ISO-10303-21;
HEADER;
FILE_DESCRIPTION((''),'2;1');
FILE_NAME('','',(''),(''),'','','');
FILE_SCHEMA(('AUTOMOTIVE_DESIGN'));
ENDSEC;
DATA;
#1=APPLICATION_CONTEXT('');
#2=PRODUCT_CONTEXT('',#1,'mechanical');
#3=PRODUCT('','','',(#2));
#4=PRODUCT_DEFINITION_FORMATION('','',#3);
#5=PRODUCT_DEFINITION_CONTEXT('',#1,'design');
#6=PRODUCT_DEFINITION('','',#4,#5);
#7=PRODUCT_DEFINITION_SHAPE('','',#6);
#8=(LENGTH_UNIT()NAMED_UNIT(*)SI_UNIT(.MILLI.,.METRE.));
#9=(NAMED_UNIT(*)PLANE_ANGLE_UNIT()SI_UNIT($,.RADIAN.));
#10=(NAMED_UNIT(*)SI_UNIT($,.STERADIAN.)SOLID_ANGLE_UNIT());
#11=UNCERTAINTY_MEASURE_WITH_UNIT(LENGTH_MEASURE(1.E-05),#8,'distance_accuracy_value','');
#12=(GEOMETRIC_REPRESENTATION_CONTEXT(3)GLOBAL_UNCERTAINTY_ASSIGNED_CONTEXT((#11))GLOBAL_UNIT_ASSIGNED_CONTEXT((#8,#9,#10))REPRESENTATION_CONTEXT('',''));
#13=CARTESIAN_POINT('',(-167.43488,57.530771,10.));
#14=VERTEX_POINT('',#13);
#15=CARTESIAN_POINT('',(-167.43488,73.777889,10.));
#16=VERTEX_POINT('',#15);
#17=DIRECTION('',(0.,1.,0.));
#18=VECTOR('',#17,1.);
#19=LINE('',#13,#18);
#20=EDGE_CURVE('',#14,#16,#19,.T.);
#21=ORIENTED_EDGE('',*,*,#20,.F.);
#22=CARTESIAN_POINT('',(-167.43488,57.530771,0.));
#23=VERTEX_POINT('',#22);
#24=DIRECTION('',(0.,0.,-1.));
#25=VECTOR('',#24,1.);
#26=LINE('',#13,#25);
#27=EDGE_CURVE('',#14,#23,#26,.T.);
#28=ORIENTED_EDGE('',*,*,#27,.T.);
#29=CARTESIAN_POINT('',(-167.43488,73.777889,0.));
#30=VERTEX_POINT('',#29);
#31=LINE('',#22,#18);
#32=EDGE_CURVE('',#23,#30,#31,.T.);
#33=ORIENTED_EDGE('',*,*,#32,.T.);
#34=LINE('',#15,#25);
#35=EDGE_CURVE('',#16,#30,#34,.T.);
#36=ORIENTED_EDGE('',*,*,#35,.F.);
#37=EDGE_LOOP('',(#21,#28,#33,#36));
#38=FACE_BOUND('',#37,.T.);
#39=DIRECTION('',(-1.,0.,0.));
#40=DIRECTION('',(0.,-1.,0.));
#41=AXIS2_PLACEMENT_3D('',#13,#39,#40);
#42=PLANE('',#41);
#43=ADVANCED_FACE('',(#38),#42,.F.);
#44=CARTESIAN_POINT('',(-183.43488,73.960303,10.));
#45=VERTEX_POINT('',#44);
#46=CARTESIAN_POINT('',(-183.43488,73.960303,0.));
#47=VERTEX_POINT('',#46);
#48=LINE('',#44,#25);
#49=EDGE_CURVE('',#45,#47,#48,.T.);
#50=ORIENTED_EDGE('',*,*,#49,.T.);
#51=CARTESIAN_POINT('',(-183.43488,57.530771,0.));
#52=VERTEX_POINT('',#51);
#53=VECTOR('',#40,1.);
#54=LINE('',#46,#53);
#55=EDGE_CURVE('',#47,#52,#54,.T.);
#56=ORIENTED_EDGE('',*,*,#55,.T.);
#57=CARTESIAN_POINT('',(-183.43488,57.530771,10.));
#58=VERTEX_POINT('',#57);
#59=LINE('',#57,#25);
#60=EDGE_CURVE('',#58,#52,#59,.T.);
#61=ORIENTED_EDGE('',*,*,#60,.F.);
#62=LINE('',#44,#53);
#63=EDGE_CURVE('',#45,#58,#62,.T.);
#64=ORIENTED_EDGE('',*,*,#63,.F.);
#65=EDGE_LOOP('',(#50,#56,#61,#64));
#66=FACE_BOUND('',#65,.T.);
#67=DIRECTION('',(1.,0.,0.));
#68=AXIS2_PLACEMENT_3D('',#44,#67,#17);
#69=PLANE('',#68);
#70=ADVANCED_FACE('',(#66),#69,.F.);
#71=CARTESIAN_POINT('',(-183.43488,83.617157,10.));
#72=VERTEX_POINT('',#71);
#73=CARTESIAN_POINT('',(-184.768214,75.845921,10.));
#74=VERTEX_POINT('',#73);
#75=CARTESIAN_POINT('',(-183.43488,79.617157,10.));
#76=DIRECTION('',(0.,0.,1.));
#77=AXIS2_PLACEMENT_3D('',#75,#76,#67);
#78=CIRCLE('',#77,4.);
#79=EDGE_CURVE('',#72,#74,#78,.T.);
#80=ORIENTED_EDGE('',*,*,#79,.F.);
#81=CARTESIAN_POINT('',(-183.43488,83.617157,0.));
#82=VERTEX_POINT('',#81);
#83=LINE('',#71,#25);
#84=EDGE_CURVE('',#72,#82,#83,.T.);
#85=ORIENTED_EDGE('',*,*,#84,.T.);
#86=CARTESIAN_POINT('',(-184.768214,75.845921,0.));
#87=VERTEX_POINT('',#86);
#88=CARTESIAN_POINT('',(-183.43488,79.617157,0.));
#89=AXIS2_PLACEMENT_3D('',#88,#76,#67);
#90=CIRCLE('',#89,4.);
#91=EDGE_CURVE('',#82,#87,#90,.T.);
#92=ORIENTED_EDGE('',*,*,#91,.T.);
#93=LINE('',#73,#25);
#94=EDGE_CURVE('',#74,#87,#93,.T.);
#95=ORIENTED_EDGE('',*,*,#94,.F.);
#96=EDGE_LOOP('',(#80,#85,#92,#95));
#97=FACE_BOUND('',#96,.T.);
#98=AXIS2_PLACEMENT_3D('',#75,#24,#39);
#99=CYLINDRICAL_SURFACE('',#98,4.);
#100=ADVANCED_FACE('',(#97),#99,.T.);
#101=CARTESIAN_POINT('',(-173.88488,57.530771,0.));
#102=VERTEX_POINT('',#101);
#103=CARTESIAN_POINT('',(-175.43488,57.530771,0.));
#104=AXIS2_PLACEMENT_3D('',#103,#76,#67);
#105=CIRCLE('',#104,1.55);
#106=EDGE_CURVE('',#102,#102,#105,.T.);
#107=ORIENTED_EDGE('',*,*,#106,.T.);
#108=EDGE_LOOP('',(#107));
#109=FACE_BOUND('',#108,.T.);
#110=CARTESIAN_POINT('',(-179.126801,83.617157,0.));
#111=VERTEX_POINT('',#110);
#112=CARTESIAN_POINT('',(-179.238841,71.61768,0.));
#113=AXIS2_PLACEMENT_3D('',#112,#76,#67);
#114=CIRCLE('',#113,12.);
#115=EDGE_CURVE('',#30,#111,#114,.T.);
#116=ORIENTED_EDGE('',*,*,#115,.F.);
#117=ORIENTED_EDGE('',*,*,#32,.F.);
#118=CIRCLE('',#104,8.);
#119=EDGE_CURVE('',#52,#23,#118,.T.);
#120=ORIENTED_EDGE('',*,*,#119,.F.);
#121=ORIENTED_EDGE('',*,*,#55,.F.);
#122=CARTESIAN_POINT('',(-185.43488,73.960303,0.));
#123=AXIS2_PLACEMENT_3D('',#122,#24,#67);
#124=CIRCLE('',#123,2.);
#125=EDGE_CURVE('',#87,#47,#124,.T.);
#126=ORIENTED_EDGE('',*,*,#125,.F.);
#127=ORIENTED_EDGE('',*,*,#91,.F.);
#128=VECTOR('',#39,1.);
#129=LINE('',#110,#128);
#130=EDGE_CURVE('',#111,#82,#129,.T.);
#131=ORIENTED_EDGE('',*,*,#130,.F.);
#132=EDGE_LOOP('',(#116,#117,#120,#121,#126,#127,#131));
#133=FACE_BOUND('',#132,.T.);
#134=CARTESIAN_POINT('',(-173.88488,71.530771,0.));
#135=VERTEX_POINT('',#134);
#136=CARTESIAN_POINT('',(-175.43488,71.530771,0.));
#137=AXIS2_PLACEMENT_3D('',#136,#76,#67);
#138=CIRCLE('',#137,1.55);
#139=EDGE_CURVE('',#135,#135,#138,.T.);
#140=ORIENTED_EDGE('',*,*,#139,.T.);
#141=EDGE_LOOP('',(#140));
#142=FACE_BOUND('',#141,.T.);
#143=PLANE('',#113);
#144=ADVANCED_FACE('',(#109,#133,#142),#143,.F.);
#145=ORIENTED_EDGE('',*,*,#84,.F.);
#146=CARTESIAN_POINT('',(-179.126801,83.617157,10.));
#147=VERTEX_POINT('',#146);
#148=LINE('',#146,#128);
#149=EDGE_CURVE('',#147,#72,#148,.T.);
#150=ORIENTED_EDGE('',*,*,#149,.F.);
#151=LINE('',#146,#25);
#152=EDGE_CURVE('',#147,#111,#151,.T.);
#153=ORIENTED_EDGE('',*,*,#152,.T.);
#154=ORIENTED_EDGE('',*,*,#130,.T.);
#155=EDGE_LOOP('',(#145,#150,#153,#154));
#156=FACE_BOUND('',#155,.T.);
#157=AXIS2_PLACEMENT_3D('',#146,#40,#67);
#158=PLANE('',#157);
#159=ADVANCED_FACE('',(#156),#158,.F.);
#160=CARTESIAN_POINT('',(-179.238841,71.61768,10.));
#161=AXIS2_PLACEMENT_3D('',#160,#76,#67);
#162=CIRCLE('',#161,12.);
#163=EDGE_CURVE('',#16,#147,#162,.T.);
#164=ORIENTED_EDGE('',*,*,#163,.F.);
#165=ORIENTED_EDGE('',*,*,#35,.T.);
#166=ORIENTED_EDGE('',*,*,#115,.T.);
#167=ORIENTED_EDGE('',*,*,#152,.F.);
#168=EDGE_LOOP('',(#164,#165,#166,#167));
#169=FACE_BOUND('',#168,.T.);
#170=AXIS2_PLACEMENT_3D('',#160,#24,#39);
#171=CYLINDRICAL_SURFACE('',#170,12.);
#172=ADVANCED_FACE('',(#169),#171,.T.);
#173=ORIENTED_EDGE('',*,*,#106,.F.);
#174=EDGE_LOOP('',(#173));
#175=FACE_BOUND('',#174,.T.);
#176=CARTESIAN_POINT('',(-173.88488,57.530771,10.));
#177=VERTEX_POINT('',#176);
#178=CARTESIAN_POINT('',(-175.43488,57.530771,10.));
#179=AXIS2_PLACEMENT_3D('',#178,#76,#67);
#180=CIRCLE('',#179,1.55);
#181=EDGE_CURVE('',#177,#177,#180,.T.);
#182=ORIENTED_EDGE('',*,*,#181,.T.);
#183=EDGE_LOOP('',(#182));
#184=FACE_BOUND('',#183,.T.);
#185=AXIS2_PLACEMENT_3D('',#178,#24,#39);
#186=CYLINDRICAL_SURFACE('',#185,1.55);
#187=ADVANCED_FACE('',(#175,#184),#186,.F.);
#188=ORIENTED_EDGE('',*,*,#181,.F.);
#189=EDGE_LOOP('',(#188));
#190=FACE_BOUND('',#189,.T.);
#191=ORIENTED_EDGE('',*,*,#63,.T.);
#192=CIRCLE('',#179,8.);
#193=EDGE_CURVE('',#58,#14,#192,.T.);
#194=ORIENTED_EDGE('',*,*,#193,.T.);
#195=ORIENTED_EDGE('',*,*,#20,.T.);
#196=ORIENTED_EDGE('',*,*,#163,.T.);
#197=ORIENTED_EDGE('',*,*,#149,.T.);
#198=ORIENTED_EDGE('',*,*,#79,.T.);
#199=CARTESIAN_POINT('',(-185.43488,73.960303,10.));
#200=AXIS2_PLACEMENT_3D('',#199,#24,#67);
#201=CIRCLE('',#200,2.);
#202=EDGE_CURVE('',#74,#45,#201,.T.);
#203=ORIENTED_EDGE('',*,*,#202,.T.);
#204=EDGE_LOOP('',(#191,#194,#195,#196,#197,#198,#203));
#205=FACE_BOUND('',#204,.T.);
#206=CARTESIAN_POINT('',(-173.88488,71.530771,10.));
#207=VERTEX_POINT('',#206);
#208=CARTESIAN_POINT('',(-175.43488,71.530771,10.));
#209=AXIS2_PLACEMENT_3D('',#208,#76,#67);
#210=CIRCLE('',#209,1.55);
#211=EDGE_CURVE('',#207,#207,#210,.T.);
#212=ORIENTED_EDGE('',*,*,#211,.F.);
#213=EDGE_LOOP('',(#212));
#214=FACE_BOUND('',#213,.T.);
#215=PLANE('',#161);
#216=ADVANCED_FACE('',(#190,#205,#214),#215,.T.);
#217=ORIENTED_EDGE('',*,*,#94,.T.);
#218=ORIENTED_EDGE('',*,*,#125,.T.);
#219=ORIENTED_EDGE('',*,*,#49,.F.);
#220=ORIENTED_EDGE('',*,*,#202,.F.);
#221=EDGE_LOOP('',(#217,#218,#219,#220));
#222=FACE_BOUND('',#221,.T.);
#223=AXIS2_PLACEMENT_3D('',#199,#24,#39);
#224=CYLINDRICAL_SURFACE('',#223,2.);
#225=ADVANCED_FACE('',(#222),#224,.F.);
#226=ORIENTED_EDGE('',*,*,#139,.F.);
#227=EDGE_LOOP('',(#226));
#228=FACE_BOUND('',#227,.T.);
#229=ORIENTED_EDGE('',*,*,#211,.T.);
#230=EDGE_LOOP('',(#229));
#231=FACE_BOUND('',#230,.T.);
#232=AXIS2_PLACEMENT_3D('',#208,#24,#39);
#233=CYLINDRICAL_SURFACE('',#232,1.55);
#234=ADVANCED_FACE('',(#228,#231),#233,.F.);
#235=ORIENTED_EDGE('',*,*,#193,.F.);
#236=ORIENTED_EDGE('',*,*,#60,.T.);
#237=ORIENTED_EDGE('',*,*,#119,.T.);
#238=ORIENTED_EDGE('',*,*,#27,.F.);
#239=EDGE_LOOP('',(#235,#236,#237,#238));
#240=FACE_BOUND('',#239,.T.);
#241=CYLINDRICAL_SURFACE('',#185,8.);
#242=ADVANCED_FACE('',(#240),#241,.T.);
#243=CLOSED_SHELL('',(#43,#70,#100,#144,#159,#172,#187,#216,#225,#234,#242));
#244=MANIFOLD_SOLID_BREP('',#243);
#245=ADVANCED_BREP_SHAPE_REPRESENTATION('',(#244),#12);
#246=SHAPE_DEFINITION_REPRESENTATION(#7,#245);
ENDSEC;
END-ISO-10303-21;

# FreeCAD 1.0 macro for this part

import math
import FreeCAD as App
import Part
import Sketcher

V = App.Vector

doc = App.newDocument("Part")
body = doc.addObject("PartDesign::Body", "Body")

sketch1 = body.newObject("Sketcher::SketchObject", "Sketch")
sketch1.AttachmentSupport = (doc.getObject("XY_Plane"), [""])
sketch1.MapMode = "FlatFace"
sketch1.addGeometry(Part.LineSegment(V(-179.1, 83.6, 0), V(-183.4, 83.6, 0)), False)
sketch1.addGeometry(Part.ArcOfCircle(Part.Circle(V(-183.4, 79.6, 0), V(0, 0, 1), 4), math.radians(90), math.radians(251)), False)
sketch1.addGeometry(Part.ArcOfCircle(Part.Circle(V(-185.4, 74, 0), V(0, 0, 1), 2), math.radians(0), math.radians(71)), False)
sketch1.addGeometry(Part.LineSegment(V(-183.4, 74, 0), V(-183.4, 57.5, 0)), False)
sketch1.addGeometry(Part.ArcOfCircle(Part.Circle(V(-175.4, 57.5, 0), V(0, 0, 1), 8), math.radians(180), math.radians(360)), False)
sketch1.addGeometry(Part.LineSegment(V(-167.4, 57.5, 0), V(-167.4, 73.8, 0)), False)
sketch1.addGeometry(Part.ArcOfCircle(Part.Circle(V(-179.2, 71.6, 0), V(0, 0, 1), 12), math.radians(10), math.radians(89)), False)
sketch1.addGeometry(Part.Circle(V(-175.4, 57.5, 0), V(0, 0, 1), 1.6), False)
sketch1.addGeometry(Part.Circle(V(-175.4, 71.5, 0), V(0, 0, 1), 1.6), False)
sketch1.addConstraint(Sketcher.Constraint("Tangent", 0, 2, 1, 1))
sketch1.addConstraint(Sketcher.Constraint("Tangent", 1, 2, 2, 2))
sketch1.addConstraint(Sketcher.Constraint("Tangent", 2, 1, 3, 1))
sketch1.addConstraint(Sketcher.Constraint("Tangent", 3, 2, 4, 1))
sketch1.addConstraint(Sketcher.Constraint("Tangent", 4, 2, 5, 1))
sketch1.addConstraint(Sketcher.Constraint("Coincident", 5, 2, 6, 1))
sketch1.addConstraint(Sketcher.Constraint("Coincident", 6, 2, 0, 1))
sketch1.addConstraint(Sketcher.Constraint("Horizontal", 0))
sketch1.addConstraint(Sketcher.Constraint("Vertical", 3))
sketch1.addConstraint(Sketcher.Constraint("Vertical", 5))
sketch1.addConstraint(Sketcher.Constraint("Coincident", 7, 3, 4, 3))
sketch1.addConstraint(Sketcher.Constraint("Equal", 7, 8))
sketch1.addConstraint(Sketcher.Constraint("Vertical", 7, 3, 8, 3))
sketch1.addConstraint(Sketcher.Constraint("Vertical", 0, 2, 2, 1))
sketch1.addConstraint(Sketcher.Constraint("Radius", 1, 4.0))
sketch1.addConstraint(Sketcher.Constraint("Radius", 2, 2.0))
sketch1.addConstraint(Sketcher.Constraint("Radius", 4, 8.0))
sketch1.addConstraint(Sketcher.Constraint("Radius", 6, 12.0))
sketch1.addConstraint(Sketcher.Constraint("Diameter", 7, 3.1))
sketch1.addConstraint(Sketcher.Constraint("DistanceY", 4, 3, 8, 3, 14.0))
sketch1.addConstraint(Sketcher.Constraint("DistanceX", 0, 2, 0, 1, 4.308079))
sketch1.addConstraint(Sketcher.Constraint("DistanceY", 5, 1, 5, 2, 16.247119))
sketch1.addConstraint(Sketcher.Constraint("DistanceX", 6, 2, -1, 1, 179.126801))
sketch1.addConstraint(Sketcher.Constraint("DistanceY", 3, 2, 3, 1, 16.429532))
sketch1.addConstraint(Sketcher.Constraint("DistanceY", -1, 1, 4, 3, 57.530771))
pad1 = body.newObject("PartDesign::Pad", "Pad")
pad1.Profile = sketch1
pad1.Length = 10

doc.recompute()
